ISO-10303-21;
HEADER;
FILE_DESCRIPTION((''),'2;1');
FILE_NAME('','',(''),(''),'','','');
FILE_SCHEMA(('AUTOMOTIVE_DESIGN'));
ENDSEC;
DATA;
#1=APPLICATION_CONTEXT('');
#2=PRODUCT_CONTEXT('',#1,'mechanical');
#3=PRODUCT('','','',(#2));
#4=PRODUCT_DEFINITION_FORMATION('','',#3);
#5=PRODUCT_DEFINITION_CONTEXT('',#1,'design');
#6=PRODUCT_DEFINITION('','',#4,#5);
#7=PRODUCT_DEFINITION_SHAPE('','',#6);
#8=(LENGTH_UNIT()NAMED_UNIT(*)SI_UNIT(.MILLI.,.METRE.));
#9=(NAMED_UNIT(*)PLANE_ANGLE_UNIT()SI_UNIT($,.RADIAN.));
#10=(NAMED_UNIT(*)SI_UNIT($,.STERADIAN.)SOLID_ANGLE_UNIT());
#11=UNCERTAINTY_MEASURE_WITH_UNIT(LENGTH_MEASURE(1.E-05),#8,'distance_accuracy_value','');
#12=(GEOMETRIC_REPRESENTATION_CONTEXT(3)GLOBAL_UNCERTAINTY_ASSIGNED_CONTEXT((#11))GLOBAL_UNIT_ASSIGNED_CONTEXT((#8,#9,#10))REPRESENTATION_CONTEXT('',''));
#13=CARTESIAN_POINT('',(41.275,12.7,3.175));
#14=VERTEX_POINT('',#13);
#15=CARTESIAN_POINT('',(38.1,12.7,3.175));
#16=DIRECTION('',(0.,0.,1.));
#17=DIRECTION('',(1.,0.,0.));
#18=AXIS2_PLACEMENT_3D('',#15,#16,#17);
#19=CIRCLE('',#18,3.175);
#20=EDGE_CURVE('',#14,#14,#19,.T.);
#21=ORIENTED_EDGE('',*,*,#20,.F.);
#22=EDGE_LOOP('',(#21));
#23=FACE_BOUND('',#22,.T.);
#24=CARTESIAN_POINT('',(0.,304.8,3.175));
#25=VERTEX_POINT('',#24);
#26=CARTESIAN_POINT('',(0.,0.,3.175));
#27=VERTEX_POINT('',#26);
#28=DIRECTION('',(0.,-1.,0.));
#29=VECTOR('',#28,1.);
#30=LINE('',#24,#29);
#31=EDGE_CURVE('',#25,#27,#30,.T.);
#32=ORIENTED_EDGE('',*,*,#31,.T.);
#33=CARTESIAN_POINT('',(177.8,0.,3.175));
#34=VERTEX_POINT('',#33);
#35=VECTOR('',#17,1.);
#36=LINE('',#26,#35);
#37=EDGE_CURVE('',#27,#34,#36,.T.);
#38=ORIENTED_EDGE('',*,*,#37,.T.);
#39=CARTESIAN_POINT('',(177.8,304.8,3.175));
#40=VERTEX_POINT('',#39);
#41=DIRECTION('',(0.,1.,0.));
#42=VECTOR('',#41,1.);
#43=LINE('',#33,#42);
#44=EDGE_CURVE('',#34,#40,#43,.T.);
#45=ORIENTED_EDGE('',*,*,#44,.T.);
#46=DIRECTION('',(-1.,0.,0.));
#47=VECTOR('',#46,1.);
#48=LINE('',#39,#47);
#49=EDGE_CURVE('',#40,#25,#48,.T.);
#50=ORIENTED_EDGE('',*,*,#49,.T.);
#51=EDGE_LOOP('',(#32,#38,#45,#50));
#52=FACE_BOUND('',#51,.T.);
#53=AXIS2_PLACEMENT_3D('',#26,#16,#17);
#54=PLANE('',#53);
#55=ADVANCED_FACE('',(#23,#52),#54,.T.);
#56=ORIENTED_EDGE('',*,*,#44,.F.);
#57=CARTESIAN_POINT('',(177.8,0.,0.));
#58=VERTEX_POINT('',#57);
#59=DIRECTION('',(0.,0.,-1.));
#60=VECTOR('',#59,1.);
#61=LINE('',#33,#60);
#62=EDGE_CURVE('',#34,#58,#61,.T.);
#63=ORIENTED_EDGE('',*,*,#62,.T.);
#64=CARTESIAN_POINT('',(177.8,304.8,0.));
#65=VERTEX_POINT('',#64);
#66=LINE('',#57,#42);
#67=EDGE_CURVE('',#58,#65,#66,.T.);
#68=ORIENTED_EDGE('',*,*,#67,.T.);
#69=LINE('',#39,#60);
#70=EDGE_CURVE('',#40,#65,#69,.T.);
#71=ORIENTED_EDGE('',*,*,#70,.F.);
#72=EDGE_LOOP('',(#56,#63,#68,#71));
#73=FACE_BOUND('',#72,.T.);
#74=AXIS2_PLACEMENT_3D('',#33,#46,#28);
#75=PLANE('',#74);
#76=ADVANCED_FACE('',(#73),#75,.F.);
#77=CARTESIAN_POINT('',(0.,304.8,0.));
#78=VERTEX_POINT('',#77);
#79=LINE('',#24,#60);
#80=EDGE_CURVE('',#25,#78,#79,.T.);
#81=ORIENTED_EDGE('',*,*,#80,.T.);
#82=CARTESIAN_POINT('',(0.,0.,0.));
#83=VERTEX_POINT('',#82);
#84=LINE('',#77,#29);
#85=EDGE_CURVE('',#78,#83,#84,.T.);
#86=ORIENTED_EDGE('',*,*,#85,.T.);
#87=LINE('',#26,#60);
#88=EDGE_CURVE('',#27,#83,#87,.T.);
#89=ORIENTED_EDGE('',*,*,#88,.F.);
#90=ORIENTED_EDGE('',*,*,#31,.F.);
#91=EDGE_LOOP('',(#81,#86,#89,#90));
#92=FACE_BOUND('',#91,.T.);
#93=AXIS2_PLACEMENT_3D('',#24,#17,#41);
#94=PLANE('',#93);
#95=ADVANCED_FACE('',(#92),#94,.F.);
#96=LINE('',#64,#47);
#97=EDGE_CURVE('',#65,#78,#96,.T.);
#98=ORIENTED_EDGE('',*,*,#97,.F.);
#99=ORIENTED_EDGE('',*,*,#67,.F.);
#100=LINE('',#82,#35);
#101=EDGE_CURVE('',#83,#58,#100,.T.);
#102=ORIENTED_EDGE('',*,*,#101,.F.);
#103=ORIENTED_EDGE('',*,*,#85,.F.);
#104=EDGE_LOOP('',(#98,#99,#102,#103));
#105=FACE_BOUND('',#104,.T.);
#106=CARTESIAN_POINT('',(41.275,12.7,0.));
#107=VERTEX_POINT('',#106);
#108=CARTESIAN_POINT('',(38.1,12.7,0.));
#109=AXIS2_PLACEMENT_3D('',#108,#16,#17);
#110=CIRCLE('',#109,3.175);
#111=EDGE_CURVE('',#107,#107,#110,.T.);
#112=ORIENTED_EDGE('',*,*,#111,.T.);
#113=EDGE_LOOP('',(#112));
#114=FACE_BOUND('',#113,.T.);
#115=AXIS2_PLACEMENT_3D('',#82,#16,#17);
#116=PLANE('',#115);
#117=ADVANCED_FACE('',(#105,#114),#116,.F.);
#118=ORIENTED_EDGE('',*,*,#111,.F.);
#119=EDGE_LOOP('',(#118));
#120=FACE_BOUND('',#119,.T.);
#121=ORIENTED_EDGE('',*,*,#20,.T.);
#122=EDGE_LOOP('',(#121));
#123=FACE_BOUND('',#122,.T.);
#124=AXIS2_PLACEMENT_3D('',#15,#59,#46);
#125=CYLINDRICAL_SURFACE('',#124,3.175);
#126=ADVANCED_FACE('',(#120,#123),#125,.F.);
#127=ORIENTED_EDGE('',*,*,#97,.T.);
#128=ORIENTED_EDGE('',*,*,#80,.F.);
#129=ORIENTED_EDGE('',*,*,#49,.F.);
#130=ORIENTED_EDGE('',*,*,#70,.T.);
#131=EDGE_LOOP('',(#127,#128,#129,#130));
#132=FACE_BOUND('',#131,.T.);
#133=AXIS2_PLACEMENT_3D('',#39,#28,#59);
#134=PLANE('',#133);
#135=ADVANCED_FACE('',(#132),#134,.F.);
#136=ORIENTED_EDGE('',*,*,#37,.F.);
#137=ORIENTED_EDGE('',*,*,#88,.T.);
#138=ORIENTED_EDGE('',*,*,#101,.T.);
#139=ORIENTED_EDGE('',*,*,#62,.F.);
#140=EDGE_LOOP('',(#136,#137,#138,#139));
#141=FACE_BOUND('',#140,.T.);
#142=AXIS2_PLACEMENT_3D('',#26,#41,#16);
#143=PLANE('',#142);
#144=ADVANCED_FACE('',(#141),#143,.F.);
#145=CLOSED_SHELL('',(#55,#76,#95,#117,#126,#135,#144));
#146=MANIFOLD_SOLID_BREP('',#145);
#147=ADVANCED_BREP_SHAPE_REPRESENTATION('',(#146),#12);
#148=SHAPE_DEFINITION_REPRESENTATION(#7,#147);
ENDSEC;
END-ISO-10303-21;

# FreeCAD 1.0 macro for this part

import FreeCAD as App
import Part
import Sketcher

V = App.Vector
Q = App.Units.Quantity

doc = App.newDocument("Part")
body = doc.addObject("PartDesign::Body", "Body")

# Sketch on XY plane
sketch1 = body.newObject("Sketcher::SketchObject", "Sketch")
sketch1.AttachmentSupport = (doc.getObject("XY_Plane"), [""])
sketch1.MapMode = "FlatFace"
sketch1.addGeometry([
    Part.LineSegment(V(0, 304.8, 0), V(0, 0, 0)),  # 0
    Part.LineSegment(V(0, 0, 0), V(177.8, 0, 0)),  # 1
    Part.LineSegment(V(177.8, 0, 0), V(177.8, 304.8, 0)),  # 2
    Part.LineSegment(V(177.8, 304.8, 0), V(0, 304.8, 0)),  # 3
    Part.Circle(V(38.1, 12.7, 0), V(0, 0, 1), 3.2),  # 4
], False)
sketch1.addConstraint([
    Sketcher.Constraint("Coincident", 0, 2, 1, 1),
    Sketcher.Constraint("Coincident", 1, 2, 2, 1),
    Sketcher.Constraint("Coincident", 2, 2, 3, 1),
    Sketcher.Constraint("Coincident", 3, 2, 0, 1),
    Sketcher.Constraint("Vertical", 0),
    Sketcher.Constraint("Horizontal", 1),
    Sketcher.Constraint("Vertical", 2),
    Sketcher.Constraint("Horizontal", 3),
    Sketcher.Constraint("Coincident", 0, 2, -1, 1),
    Sketcher.Constraint("Diameter", 4, Q("0.25 in")),
    Sketcher.Constraint("DistanceX", 1, 1, 1, 2, Q("7 in")),
    Sketcher.Constraint("DistanceY", 0, 2, 0, 1, Q("12 in")),
    Sketcher.Constraint("DistanceX", -1, 1, 4, 3, Q("1.5 in")),
    Sketcher.Constraint("DistanceY", -1, 1, 4, 3, Q("0.5 in")),
])
pad1 = body.newObject("PartDesign::Pad", "Pad")
pad1.Profile = sketch1
pad1.Length = Q("0.125 in")

doc.recompute()
